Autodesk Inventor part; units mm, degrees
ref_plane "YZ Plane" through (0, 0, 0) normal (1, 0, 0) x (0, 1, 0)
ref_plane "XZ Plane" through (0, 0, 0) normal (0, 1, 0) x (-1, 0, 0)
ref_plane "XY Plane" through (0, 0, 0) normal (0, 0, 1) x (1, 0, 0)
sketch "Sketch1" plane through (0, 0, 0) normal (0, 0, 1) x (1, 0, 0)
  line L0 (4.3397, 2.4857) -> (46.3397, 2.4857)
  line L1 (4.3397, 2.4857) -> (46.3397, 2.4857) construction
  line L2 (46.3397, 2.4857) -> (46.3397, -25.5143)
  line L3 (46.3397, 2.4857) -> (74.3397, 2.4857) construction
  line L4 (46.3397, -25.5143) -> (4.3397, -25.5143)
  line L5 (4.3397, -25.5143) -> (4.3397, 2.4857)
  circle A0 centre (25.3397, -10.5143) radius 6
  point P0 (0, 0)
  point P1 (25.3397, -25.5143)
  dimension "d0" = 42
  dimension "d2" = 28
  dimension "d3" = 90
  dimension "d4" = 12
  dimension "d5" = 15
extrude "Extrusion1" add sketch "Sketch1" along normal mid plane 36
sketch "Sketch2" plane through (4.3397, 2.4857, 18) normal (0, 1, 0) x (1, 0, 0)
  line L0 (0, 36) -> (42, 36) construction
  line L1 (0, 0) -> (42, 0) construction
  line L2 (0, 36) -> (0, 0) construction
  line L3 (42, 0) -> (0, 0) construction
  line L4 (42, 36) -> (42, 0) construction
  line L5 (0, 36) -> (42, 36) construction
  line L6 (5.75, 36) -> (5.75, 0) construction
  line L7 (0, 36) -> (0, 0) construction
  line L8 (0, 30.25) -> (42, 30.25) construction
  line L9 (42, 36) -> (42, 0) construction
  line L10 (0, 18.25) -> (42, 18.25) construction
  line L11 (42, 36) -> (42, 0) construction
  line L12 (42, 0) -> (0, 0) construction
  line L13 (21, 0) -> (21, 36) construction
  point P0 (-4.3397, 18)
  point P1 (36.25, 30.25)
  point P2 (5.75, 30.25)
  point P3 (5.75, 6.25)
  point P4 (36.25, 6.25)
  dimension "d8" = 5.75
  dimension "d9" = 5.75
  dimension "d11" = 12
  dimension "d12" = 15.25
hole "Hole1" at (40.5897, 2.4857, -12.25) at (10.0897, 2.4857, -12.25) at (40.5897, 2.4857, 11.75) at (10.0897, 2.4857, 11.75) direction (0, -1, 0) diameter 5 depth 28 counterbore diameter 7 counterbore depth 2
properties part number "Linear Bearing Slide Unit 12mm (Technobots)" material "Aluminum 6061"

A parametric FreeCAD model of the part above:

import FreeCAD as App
import Part
import Sketcher
from FreeCAD import Vector

doc = App.newDocument("Part")
params = doc.addObject("Spreadsheet::Sheet", "Params")
for row, (alias, value) in enumerate([
    ("sketch1_diameter", "12 mm"),
    ("sketch1_width", "42 mm"),
    ("sketch1_height", "28 mm"),
    ("pad1_length", "36 mm"),
    ("sketch2_diameter", "5 mm"),
    ("hole_diameter", "5 mm"),
    ("hole_depth", "28 mm"),
    ("hole_cbore_diameter", "7 mm"),
    ("hole_cbore_depth", "2 mm"),
], start=1):
    params.set(f"A{row}", alias)
    params.set(f"B{row}", "=" + value)
    params.setAlias(f"B{row}", alias)

body = doc.addObject("PartDesign::Body", "Body")

sketch1 = doc.addObject("Sketcher::SketchObject", "Sketch")
body.addObject(sketch1)
sketch1.AttachmentSupport = (doc.XY_Plane, [""])
sketch1.MapMode = "FlatFace"
sketch1.addGeometry([
    Part.LineSegment(Vector(46, 2, 0), Vector(4, 2, 0)),
    Part.LineSegment(Vector(4, 2, 0), Vector(4, -26, 0)),
    Part.LineSegment(Vector(4, -26, 0), Vector(46, -26, 0)),
    Part.LineSegment(Vector(46, -26, 0), Vector(46, 2, 0)),
    Part.Circle(Vector(25, -11, 0), Vector(0, 0, 1), 6),
], False)
sketch1.addConstraint([
    Sketcher.Constraint("Coincident", 0, 2, 1, 1),
    Sketcher.Constraint("Coincident", 1, 2, 2, 1),
    Sketcher.Constraint("Coincident", 2, 2, 3, 1),
    Sketcher.Constraint("Coincident", 3, 2, 0, 1),
    Sketcher.Constraint("Horizontal", 0),
    Sketcher.Constraint("Vertical", 1),
    Sketcher.Constraint("Horizontal", 2),
    Sketcher.Constraint("Vertical", 3),
    Sketcher.Constraint("Diameter", 4, 12.0),
    Sketcher.Constraint("DistanceX", 0, 2, 0, 1, 42.0),
    Sketcher.Constraint("DistanceY", 1, 2, 1, 1, 28.0),
    Sketcher.Constraint("DistanceY", 1, 2, 4, 3, 15.0),
    Sketcher.Constraint("DistanceX", 0, 2, 4, 3, 21.0),
    Sketcher.Constraint("DistanceX", -1, 1, 4, 3, 25.3397),
    Sketcher.Constraint("DistanceY", 4, 3, -1, 1, 10.5143),
])
sketch1.setExpression("Constraints[8]", "Params.sketch1_diameter")
sketch1.setExpression("Constraints[9]", "Params.sketch1_width")
sketch1.setExpression("Constraints[10]", "Params.sketch1_height")
pad1 = doc.addObject("PartDesign::Pad", "Pad")
body.addObject(pad1)
pad1.Profile = sketch1
pad1.setExpression("Length", "Params.pad1_length")
pad1.Midplane = True

sketch2 = doc.addObject("Sketcher::SketchObject", "Sketch001")
body.addObject(sketch2)
sketch2.AttachmentSupport = (doc.XZ_Plane, [""])
sketch2.MapMode = "FlatFace"
sketch2.AttachmentOffset = App.Placement(Vector(0, 0, -2.4857), App.Rotation())
sketch2.addGeometry([
    Part.Circle(Vector(40.6, -12.2, 0), Vector(0, 0, 1), 2.5),
    Part.Circle(Vector(10.1, -12.2, 0), Vector(0, 0, 1), 2.5),
    Part.Circle(Vector(40.6, 11.8, 0), Vector(0, 0, 1), 2.5),
    Part.Circle(Vector(10.1, 11.8, 0), Vector(0, 0, 1), 2.5),
], False)
sketch2.addConstraint([
    Sketcher.Constraint("Equal", 0, 1),
    Sketcher.Constraint("Equal", 1, 2),
    Sketcher.Constraint("Equal", 2, 3),
    Sketcher.Constraint("Horizontal", 0, 3, 1, 3),
    Sketcher.Constraint("Horizontal", 2, 3, 3, 3),
    Sketcher.Constraint("Vertical", 0, 3, 2, 3),
    Sketcher.Constraint("Vertical", 1, 3, 3, 3),
    Sketcher.Constraint("Diameter", 0, 5.0),
    Sketcher.Constraint("DistanceY", 0, 3, 2, 3, 24.0),
    Sketcher.Constraint("DistanceX", 1, 3, 0, 3, 30.5),
    Sketcher.Constraint("DistanceY", 0, 3, -1, 1, 12.25),
    Sketcher.Constraint("DistanceX", -1, 1, 0, 3, 40.5897),
])
sketch2.setExpression("Constraints[7]", "Params.sketch2_diameter")
doc.recompute()
hole = doc.addObject("PartDesign::Hole", "Hole")
body.addObject(hole)
hole.Profile = sketch2
hole.ThreadType = "None"
hole.setExpression("Diameter", "Params.hole_diameter")
hole.DepthType = "Dimension"
hole.setExpression("Depth", "Params.hole_depth")
hole.DrillPoint = "Flat"
hole.HoleCutType = "Counterbore"
hole.setExpression("HoleCutDiameter", "Params.hole_cbore_diameter")
hole.setExpression("HoleCutDepth", "Params.hole_cbore_depth")
hole.Reversed = True

doc.recompute()
